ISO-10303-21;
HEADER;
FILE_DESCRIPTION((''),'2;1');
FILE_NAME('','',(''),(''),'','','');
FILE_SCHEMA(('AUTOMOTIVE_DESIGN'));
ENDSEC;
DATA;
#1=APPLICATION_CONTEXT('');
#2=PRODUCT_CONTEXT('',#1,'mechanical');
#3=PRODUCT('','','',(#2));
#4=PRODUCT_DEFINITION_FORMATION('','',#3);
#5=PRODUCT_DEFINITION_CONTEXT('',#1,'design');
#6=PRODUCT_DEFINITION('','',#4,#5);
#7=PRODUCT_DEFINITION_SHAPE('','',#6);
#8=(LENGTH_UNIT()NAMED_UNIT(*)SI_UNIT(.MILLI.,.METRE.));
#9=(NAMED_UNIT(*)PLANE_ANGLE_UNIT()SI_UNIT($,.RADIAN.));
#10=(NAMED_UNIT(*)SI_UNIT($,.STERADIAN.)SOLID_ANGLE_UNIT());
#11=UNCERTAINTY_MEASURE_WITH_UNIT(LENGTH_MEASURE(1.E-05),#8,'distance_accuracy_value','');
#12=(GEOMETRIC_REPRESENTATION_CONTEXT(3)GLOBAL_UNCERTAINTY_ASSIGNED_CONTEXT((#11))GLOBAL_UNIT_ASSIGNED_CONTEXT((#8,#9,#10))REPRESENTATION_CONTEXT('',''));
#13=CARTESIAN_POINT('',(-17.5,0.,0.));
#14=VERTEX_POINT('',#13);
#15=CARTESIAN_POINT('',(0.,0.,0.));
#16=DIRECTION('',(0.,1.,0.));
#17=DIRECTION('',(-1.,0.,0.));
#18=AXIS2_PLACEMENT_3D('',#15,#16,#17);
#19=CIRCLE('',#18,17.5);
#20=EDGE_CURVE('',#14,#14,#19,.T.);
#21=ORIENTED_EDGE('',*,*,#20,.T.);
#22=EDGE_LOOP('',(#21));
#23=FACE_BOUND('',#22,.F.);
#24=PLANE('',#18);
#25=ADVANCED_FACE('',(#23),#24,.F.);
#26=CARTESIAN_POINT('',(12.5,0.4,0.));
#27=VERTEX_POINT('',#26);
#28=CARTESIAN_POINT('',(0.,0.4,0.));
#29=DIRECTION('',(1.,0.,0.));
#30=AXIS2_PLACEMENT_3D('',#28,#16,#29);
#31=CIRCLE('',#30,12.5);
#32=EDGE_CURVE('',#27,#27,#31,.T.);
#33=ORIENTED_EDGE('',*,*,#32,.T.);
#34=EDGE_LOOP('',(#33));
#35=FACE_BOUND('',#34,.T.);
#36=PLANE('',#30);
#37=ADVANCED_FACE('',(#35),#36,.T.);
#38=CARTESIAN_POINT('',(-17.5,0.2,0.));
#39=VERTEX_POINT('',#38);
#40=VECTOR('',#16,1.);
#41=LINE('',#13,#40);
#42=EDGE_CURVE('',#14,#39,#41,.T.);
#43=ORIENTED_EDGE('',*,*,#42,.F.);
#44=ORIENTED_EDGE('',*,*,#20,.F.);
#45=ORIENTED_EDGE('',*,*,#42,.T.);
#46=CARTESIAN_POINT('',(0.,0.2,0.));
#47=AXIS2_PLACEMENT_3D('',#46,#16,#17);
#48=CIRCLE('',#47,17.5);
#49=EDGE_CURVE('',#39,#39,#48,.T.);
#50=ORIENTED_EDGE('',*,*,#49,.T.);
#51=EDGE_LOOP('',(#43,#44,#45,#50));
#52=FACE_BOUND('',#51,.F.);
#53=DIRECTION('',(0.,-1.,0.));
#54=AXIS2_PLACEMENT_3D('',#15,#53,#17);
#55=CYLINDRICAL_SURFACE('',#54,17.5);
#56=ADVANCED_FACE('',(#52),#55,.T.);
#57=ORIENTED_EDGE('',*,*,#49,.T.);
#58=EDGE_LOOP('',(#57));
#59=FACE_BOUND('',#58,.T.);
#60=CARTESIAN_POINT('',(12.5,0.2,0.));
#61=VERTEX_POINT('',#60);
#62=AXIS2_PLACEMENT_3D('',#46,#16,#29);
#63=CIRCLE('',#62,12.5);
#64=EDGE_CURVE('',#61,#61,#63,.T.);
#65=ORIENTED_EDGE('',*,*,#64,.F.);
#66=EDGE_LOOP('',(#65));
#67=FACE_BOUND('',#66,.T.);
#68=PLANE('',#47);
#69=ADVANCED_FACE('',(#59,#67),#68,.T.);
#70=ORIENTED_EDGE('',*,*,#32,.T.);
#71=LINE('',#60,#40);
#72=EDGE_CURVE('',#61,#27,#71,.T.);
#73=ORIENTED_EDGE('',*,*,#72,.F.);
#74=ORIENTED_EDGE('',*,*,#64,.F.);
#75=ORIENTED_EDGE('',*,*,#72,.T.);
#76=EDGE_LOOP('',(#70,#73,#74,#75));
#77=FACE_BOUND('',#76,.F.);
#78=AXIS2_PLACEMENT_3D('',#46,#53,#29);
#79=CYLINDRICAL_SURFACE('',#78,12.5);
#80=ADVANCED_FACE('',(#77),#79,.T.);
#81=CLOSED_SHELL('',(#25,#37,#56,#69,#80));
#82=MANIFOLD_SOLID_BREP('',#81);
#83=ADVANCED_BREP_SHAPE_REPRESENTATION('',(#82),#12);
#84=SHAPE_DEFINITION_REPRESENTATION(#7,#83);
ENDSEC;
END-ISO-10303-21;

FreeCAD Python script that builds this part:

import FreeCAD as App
import Part
import Sketcher
Q = App.Units.Quantity

doc = App.newDocument("Part")
params = doc.addObject("Spreadsheet::Sheet", "Params")
for row, (alias, value) in enumerate([
    ("sketch1_diameter", "35 mm"),
    ("pad1_length", "0.2 mm"),
    ("sketch2_diameter", "25 mm"),
    ("pad2_length", "0.2 mm"),
], start=1):
    params.set(f"A{row}", alias)
    params.set(f"B{row}", "=" + value)
    params.setAlias(f"B{row}", alias)

body = doc.addObject("PartDesign::Body", "Body")

sketch1 = doc.addObject("Sketcher::SketchObject", "Sketch")
body.addObject(sketch1)
sketch1.AttachmentSupport = (doc.XZ_Plane, [""])
sketch1.MapMode = "FlatFace"
sketch1.addGeometry(Part.Circle(App.Vector(0, 0, 0), App.Vector(0, 0, 1), 18), False)
sketch1.addConstraint([
    Sketcher.Constraint("Coincident", 0, 3, -1, 1),
    Sketcher.Constraint("Diameter", 0, Q("35 mm")),
])
sketch1.setExpression("Constraints[1]", "Params.sketch1_diameter")
pad1 = doc.addObject("PartDesign::Pad", "Pad")
body.addObject(pad1)
pad1.Profile = sketch1
pad1.setExpression("Length", "Params.pad1_length")
pad1.Reversed = True

sketch2 = doc.addObject("Sketcher::SketchObject", "Sketch001")
body.addObject(sketch2)
sketch2.AttachmentSupport = (doc.XZ_Plane, [""])
sketch2.MapMode = "FlatFace"
sketch2.AttachmentOffset = App.Placement(App.Vector(0, 0, -0.2), App.Rotation())
sketch2.addGeometry(Part.Circle(App.Vector(0, 0, 0), App.Vector(0, 0, 1), 12), False)
sketch2.addConstraint([
    Sketcher.Constraint("Coincident", 0, 3, -1, 1),
    Sketcher.Constraint("Diameter", 0, Q("25 mm")),
])
sketch2.setExpression("Constraints[1]", "Params.sketch2_diameter")
pad2 = doc.addObject("PartDesign::Pad", "Pad001")
body.addObject(pad2)
pad2.Profile = sketch2
pad2.setExpression("Length", "Params.pad2_length")
pad2.Reversed = True

doc.recompute()
